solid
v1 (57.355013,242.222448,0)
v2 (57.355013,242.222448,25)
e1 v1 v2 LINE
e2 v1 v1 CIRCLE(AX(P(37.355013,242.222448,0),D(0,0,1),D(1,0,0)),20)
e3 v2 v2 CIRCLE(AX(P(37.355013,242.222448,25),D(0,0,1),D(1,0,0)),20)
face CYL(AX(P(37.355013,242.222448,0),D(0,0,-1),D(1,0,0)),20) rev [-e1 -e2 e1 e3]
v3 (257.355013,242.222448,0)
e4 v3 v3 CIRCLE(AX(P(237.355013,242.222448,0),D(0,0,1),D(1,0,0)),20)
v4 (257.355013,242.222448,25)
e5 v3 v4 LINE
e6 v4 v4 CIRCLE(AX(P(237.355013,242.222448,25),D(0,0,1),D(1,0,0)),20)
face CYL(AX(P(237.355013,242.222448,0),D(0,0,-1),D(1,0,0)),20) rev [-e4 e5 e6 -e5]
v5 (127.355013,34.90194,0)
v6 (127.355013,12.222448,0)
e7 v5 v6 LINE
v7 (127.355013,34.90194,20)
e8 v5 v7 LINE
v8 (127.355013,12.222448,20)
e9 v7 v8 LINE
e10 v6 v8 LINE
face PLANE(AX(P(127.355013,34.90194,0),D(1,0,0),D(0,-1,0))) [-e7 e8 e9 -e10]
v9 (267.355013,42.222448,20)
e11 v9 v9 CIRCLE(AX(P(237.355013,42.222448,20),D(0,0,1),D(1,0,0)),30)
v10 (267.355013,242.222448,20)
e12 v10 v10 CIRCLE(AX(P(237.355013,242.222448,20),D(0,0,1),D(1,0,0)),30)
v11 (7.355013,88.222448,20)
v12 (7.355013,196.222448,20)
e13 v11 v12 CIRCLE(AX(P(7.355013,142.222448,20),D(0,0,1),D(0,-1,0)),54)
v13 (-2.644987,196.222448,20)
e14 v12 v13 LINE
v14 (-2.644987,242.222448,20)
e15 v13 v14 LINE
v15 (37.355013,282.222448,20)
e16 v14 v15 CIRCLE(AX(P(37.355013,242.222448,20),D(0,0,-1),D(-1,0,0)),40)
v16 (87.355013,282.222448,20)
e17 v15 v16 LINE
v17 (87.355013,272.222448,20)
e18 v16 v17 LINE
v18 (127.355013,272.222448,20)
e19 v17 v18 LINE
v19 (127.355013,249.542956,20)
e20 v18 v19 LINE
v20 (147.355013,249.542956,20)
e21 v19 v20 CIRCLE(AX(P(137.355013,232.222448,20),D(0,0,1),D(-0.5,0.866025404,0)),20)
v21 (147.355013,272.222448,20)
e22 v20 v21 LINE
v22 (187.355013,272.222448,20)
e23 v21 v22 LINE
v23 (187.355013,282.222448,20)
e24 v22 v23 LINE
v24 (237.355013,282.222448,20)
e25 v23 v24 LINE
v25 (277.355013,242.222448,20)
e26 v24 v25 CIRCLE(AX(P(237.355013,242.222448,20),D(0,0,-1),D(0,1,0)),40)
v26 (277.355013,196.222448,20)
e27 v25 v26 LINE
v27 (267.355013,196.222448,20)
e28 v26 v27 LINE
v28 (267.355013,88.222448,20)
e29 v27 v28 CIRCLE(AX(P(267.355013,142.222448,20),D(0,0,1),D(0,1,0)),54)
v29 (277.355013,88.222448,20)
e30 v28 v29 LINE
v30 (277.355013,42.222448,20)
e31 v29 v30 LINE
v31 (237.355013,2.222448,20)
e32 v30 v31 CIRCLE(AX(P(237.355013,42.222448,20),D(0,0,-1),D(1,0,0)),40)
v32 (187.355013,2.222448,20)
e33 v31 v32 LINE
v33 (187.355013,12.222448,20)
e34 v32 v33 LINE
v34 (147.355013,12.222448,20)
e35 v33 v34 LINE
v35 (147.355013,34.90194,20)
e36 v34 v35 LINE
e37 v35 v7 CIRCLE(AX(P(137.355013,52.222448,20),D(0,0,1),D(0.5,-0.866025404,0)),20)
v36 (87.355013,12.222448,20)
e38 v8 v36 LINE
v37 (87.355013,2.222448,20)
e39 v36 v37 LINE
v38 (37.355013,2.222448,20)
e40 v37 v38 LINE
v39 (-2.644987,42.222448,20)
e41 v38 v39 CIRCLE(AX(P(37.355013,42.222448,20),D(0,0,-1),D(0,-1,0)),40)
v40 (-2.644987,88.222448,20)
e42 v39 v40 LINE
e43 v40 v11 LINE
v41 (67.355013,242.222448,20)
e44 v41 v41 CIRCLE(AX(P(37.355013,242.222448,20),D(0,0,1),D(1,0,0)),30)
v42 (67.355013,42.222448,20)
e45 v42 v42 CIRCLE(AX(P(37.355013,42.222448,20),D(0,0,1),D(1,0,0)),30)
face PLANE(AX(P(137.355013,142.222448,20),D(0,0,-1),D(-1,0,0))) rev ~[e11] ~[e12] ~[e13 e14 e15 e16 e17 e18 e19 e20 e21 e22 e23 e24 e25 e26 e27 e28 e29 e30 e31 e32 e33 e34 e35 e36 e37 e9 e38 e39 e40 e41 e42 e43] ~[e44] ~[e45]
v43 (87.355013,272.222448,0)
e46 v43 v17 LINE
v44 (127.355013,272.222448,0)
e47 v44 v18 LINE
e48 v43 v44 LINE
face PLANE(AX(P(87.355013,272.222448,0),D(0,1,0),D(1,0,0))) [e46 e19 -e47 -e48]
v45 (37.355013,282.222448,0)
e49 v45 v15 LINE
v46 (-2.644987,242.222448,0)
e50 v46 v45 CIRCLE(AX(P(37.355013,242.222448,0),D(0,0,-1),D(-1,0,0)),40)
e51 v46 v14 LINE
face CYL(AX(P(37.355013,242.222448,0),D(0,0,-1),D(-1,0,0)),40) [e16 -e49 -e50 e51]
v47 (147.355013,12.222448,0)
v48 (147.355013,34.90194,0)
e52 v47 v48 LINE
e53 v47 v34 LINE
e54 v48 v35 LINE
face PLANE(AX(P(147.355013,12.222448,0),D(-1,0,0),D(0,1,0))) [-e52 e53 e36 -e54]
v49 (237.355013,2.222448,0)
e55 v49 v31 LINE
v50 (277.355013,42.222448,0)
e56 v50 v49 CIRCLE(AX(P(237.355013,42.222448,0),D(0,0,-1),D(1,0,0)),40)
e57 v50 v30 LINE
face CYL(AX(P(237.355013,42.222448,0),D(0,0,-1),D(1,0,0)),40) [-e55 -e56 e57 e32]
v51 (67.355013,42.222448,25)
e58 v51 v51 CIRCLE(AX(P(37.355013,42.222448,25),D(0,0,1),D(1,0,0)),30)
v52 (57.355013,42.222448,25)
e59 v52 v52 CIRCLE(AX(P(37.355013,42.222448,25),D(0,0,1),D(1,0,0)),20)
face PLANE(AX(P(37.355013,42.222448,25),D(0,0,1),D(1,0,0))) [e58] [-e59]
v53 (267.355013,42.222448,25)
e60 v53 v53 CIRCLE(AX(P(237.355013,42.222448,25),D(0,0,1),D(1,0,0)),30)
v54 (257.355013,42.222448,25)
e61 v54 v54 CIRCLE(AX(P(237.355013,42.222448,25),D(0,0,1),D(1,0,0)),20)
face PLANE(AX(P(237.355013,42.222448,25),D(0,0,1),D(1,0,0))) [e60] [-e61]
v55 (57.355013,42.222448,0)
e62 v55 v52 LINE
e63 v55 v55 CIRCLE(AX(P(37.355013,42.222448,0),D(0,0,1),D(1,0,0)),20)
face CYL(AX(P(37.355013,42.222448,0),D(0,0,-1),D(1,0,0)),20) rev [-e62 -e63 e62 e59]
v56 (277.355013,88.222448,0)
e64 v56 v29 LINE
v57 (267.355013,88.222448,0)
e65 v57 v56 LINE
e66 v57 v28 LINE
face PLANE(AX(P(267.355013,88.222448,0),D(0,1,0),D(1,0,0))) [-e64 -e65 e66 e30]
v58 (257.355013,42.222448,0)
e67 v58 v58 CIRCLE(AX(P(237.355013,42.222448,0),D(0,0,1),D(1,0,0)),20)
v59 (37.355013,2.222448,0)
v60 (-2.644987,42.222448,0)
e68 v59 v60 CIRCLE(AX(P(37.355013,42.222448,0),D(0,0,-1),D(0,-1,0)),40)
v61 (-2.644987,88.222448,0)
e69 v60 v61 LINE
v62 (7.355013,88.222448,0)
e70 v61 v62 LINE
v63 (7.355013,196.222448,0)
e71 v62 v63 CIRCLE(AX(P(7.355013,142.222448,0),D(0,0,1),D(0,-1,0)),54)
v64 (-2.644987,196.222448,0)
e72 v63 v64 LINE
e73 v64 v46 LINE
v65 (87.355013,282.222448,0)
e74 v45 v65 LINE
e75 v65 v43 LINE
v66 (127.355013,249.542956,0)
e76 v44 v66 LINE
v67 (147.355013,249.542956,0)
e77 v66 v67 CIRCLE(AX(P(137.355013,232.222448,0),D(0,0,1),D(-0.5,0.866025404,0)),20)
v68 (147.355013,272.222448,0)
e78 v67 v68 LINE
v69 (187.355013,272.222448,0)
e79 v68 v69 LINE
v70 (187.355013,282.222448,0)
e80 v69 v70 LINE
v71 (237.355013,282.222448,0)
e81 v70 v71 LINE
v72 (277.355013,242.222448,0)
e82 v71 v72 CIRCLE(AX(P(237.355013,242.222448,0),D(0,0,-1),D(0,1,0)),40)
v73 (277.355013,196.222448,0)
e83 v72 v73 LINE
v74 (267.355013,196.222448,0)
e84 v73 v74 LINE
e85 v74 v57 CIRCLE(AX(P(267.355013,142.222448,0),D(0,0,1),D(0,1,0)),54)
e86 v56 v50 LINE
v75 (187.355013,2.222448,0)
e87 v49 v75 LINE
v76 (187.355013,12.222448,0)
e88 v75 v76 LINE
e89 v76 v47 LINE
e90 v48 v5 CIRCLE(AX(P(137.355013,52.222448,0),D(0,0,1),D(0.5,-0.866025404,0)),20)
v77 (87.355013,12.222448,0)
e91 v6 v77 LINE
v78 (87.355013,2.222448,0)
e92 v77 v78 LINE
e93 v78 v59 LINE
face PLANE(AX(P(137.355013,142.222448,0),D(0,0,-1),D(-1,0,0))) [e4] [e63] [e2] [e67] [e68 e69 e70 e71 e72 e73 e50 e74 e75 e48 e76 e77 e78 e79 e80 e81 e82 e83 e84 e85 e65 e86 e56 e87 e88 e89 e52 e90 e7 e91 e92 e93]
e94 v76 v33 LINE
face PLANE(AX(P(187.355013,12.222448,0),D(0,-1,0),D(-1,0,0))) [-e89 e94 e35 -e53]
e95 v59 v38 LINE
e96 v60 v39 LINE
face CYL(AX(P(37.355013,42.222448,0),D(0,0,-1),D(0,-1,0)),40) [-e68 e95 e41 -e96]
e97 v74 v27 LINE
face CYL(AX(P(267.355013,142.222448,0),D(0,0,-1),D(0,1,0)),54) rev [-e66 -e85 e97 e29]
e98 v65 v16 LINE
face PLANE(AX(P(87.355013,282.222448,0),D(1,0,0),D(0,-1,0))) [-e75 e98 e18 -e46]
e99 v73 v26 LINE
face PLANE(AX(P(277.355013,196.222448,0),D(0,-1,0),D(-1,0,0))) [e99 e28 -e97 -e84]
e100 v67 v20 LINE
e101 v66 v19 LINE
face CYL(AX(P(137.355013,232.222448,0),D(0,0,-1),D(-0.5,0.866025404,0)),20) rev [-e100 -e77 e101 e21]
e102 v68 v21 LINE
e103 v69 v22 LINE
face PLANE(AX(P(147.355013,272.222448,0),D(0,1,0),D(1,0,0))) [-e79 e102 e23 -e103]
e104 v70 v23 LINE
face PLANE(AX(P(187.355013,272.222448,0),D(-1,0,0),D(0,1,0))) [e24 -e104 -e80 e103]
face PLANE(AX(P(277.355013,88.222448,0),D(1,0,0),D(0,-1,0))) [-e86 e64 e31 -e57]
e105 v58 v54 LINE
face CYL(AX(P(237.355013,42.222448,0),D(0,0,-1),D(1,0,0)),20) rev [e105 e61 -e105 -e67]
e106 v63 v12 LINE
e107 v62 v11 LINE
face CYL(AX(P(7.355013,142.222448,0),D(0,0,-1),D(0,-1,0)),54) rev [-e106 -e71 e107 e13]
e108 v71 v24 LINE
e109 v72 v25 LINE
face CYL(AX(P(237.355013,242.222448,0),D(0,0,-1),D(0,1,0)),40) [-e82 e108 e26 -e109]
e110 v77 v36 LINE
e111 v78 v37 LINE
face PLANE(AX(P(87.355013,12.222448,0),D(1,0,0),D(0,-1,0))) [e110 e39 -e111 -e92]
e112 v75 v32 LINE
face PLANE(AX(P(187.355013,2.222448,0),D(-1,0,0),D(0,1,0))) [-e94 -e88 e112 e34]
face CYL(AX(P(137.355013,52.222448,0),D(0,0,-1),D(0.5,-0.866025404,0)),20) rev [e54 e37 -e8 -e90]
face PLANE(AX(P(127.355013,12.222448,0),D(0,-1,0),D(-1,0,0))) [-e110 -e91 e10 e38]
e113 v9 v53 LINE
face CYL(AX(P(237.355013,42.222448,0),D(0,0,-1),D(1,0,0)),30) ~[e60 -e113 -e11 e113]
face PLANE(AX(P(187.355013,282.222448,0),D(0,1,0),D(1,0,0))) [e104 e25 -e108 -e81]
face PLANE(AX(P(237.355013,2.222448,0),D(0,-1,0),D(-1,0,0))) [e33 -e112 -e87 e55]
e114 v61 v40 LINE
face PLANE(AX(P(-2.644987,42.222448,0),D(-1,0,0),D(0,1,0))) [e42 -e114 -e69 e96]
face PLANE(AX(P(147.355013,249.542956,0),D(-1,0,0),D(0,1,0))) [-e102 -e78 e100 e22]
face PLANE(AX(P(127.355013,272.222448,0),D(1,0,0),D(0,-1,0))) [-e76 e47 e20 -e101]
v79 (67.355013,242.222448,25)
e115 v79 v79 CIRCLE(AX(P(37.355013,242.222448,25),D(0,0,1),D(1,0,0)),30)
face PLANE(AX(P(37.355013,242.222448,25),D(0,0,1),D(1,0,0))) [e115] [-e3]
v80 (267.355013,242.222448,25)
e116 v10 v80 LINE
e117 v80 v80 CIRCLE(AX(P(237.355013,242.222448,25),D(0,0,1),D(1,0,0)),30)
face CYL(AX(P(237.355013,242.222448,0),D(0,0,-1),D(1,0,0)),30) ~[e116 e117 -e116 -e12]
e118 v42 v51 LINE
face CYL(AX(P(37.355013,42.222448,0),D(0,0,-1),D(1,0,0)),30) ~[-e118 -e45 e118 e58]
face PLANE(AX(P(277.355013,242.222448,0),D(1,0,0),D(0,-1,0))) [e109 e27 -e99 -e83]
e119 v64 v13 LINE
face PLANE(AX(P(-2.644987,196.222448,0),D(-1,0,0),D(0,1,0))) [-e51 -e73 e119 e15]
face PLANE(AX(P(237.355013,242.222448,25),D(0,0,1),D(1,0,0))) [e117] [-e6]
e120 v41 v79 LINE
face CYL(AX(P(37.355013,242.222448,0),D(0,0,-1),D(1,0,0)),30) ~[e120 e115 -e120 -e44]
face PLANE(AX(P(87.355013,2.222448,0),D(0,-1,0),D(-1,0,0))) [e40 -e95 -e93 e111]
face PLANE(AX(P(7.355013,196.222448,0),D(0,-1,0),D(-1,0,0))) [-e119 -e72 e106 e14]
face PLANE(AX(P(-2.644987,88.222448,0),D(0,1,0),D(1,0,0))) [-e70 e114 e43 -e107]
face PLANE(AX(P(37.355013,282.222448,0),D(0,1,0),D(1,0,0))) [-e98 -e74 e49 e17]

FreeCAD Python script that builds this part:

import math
import FreeCAD as App
import Part
import Sketcher
Q = App.Units.Quantity

doc = App.newDocument("Part")
body = doc.addObject("PartDesign::Body", "Body")

# Sketch on XY plane
sketch1 = body.newObject("Sketcher::SketchObject", "Sketch")
sketch1.AttachmentSupport = (doc.getObject("XY_Plane"), [""])
sketch1.MapMode = "FlatFace"
sketch1.addGeometry([
    Part.LineSegment(App.Vector(147, 272, 0), App.Vector(147, 250, 0)),  # 0
    Part.ArcOfCircle(Part.Circle(App.Vector(137, 232, 0), App.Vector(0, 0, 1), 20), math.radians(120), math.radians(420)),  # 1
    Part.LineSegment(App.Vector(127, 250, 0), App.Vector(127, 272, 0)),  # 2
    Part.LineSegment(App.Vector(127, 272, 0), App.Vector(87, 272, 0)),  # 3
    Part.LineSegment(App.Vector(87, 272, 0), App.Vector(87, 282, 0)),  # 4
    Part.LineSegment(App.Vector(87, 282, 0), App.Vector(37, 282, 0)),  # 5
    Part.ArcOfCircle(Part.Circle(App.Vector(37, 242, 0), App.Vector(0, 0, 1), 40), math.radians(90), math.radians(180)),  # 6
    Part.LineSegment(App.Vector(-3, 242, 0), App.Vector(-3, 196, 0)),  # 7
    Part.LineSegment(App.Vector(-3, 196, 0), App.Vector(7, 196, 0)),  # 8
    Part.ArcOfCircle(Part.Circle(App.Vector(7, 142, 0), App.Vector(0, 0, 1), 54), math.radians(-90), math.radians(90)),  # 9
    Part.LineSegment(App.Vector(7, 88, 0), App.Vector(-3, 88, 0)),  # 10
    Part.LineSegment(App.Vector(-3, 88, 0), App.Vector(-3, 42, 0)),  # 11
    Part.ArcOfCircle(Part.Circle(App.Vector(37, 42, 0), App.Vector(0, 0, 1), 40), math.radians(-180), math.radians(-90)),  # 12
    Part.LineSegment(App.Vector(37, 2, 0), App.Vector(87, 2, 0)),  # 13
    Part.LineSegment(App.Vector(87, 2, 0), App.Vector(87, 12, 0)),  # 14
    Part.LineSegment(App.Vector(87, 12, 0), App.Vector(127, 12, 0)),  # 15
    Part.LineSegment(App.Vector(127, 12, 0), App.Vector(127, 35, 0)),  # 16
    Part.ArcOfCircle(Part.Circle(App.Vector(137, 52, 0), App.Vector(0, 0, 1), 20), math.radians(-60), math.radians(240)),  # 17
    Part.LineSegment(App.Vector(147, 35, 0), App.Vector(147, 12, 0)),  # 18
    Part.LineSegment(App.Vector(147, 12, 0), App.Vector(187, 12, 0)),  # 19
    Part.LineSegment(App.Vector(187, 12, 0), App.Vector(187, 2, 0)),  # 20
    Part.LineSegment(App.Vector(187, 2, 0), App.Vector(237, 2, 0)),  # 21
    Part.ArcOfCircle(Part.Circle(App.Vector(237, 42, 0), App.Vector(0, 0, 1), 40), math.radians(-90), math.radians(0)),  # 22
    Part.LineSegment(App.Vector(277, 42, 0), App.Vector(277, 88, 0)),  # 23
    Part.LineSegment(App.Vector(277, 88, 0), App.Vector(267, 88, 0)),  # 24
    Part.ArcOfCircle(Part.Circle(App.Vector(267, 142, 0), App.Vector(0, 0, 1), 54), math.radians(90), math.radians(270)),  # 25
    Part.LineSegment(App.Vector(267, 196, 0), App.Vector(277, 196, 0)),  # 26
    Part.LineSegment(App.Vector(277, 196, 0), App.Vector(277, 242, 0)),  # 27
    Part.ArcOfCircle(Part.Circle(App.Vector(237, 242, 0), App.Vector(0, 0, 1), 40), math.radians(0), math.radians(90)),  # 28
    Part.LineSegment(App.Vector(237, 282, 0), App.Vector(187, 282, 0)),  # 29
    Part.LineSegment(App.Vector(187, 282, 0), App.Vector(187, 272, 0)),  # 30
    Part.LineSegment(App.Vector(187, 272, 0), App.Vector(147, 272, 0)),  # 31
    Part.Circle(App.Vector(237, 42, 0), App.Vector(0, 0, 1), 30),  # 32
    Part.Circle(App.Vector(37, 42, 0), App.Vector(0, 0, 1), 30),  # 33
    Part.Circle(App.Vector(237, 242, 0), App.Vector(0, 0, 1), 30),  # 34
    Part.Circle(App.Vector(37, 242, 0), App.Vector(0, 0, 1), 30),  # 35
], False)
sketch1.addConstraint([
    Sketcher.Constraint("Coincident", 0, 2, 1, 2),
    Sketcher.Constraint("Coincident", 1, 1, 2, 1),
    Sketcher.Constraint("Coincident", 2, 2, 3, 1),
    Sketcher.Constraint("Coincident", 3, 2, 4, 1),
    Sketcher.Constraint("Coincident", 4, 2, 5, 1),
    Sketcher.Constraint("Tangent", 5, 2, 6, 1),
    Sketcher.Constraint("Tangent", 6, 2, 7, 1),
    Sketcher.Constraint("Coincident", 7, 2, 8, 1),
    Sketcher.Constraint("Tangent", 8, 2, 9, 2),
    Sketcher.Constraint("Tangent", 9, 1, 10, 1),
    Sketcher.Constraint("Coincident", 10, 2, 11, 1),
    Sketcher.Constraint("Tangent", 11, 2, 12, 1),
    Sketcher.Constraint("Tangent", 12, 2, 13, 1),
    Sketcher.Constraint("Coincident", 13, 2, 14, 1),
    Sketcher.Constraint("Coincident", 14, 2, 15, 1),
    Sketcher.Constraint("Coincident", 15, 2, 16, 1),
    Sketcher.Constraint("Coincident", 16, 2, 17, 2),
    Sketcher.Constraint("Coincident", 17, 1, 18, 1),
    Sketcher.Constraint("Coincident", 18, 2, 19, 1),
    Sketcher.Constraint("Coincident", 19, 2, 20, 1),
    Sketcher.Constraint("Coincident", 20, 2, 21, 1),
    Sketcher.Constraint("Tangent", 21, 2, 22, 1),
    Sketcher.Constraint("Tangent", 22, 2, 23, 1),
    Sketcher.Constraint("Coincident", 23, 2, 24, 1),
    Sketcher.Constraint("Tangent", 24, 2, 25, 2),
    Sketcher.Constraint("Tangent", 25, 1, 26, 1),
    Sketcher.Constraint("Coincident", 26, 2, 27, 1),
    Sketcher.Constraint("Tangent", 27, 2, 28, 1),
    Sketcher.Constraint("Tangent", 28, 2, 29, 1),
    Sketcher.Constraint("Coincident", 29, 2, 30, 1),
    Sketcher.Constraint("Coincident", 30, 2, 31, 1),
    Sketcher.Constraint("Coincident", 31, 2, 0, 1),
    Sketcher.Constraint("Vertical", 0),
    Sketcher.Constraint("Vertical", 2),
    Sketcher.Constraint("Horizontal", 3),
    Sketcher.Constraint("Vertical", 4),
    Sketcher.Constraint("Horizontal", 5),
    Sketcher.Constraint("Vertical", 7),
    Sketcher.Constraint("Horizontal", 8),
    Sketcher.Constraint("Horizontal", 10),
    Sketcher.Constraint("Vertical", 11),
    Sketcher.Constraint("Horizontal", 13),
    Sketcher.Constraint("Vertical", 14),
    Sketcher.Constraint("Horizontal", 15),
    Sketcher.Constraint("Vertical", 16),
    Sketcher.Constraint("Vertical", 18),
    Sketcher.Constraint("Horizontal", 19),
    Sketcher.Constraint("Vertical", 20),
    Sketcher.Constraint("Horizontal", 21),
    Sketcher.Constraint("Vertical", 23),
    Sketcher.Constraint("Horizontal", 24),
    Sketcher.Constraint("Horizontal", 26),
    Sketcher.Constraint("Vertical", 27),
    Sketcher.Constraint("Horizontal", 29),
    Sketcher.Constraint("Vertical", 30),
    Sketcher.Constraint("Horizontal", 31),
    Sketcher.Constraint("Coincident", 32, 3, 22, 3),
    Sketcher.Constraint("Coincident", 33, 3, 12, 3),
    Sketcher.Constraint("Coincident", 34, 3, 28, 3),
    Sketcher.Constraint("Coincident", 35, 3, 6, 3),
    Sketcher.Constraint("Equal", 6, 12),
    Sketcher.Constraint("Equal", 1, 17),
    Sketcher.Constraint("Equal", 12, 22),
    Sketcher.Constraint("Equal", 9, 25),
    Sketcher.Constraint("Equal", 22, 28),
    Sketcher.Constraint("Equal", 32, 33),
    Sketcher.Constraint("Equal", 33, 34),
    Sketcher.Constraint("Equal", 34, 35),
    Sketcher.Constraint("Horizontal", 12, 3, 22, 3),
    Sketcher.Constraint("Horizontal", 9, 3, 25, 3),
    Sketcher.Constraint("Horizontal", 6, 3, 28, 3),
    Sketcher.Constraint("Horizontal", 0, 2, 1, 1),
    Sketcher.Constraint("Horizontal", 16, 2, 17, 1),
    Sketcher.Constraint("Horizontal", 15, 2, 18, 2),
    Sketcher.Constraint("Horizontal", 3, 2, 30, 2),
    Sketcher.Constraint("Vertical", 6, 3, 12, 3),
    Sketcher.Constraint("Vertical", 1, 3, 17, 3),
    Sketcher.Constraint("Vertical", 22, 3, 28, 3),
    Sketcher.Constraint("Vertical", 4, 2, 13, 2),
    Sketcher.Constraint("Vertical", 2, 2, 15, 2),
    Sketcher.Constraint("Vertical", 20, 2, 29, 2),
    Sketcher.Constraint("Equal", 15, 19),
    Sketcher.Constraint("Equal", 13, 21),
    Sketcher.Constraint("Equal", 10, 24),
    Sketcher.Constraint("Equal", 26, 4),
    Sketcher.Constraint("Equal", 7, 11),
    Sketcher.Constraint("Equal", 4, 14),
    Sketcher.Constraint("Equal", 2, 16),
    Sketcher.Constraint("Diameter", 32, Q("60 mm")),
    Sketcher.Constraint("Radius", 1, Q("20 mm")),
    Sketcher.Constraint("Radius", 6, Q("40 mm")),
    Sketcher.Constraint("Radius", 9, Q("54 mm")),
    Sketcher.Constraint("DistanceX", 3, 2, 3, 1, Q("40 mm")),
    Sketcher.Constraint("DistanceX", 5, 2, 5, 1, Q("50 mm")),
    Sketcher.Constraint("DistanceX", 8, 1, 8, 2, Q("10 mm")),
    Sketcher.Constraint("DistanceY", 7, 2, 7, 1, Q("46 mm")),
    Sketcher.Constraint("DistanceX", 6, 3, 1, 3, Q("100 mm")),
    Sketcher.Constraint("DistanceY", 1, 3, 6, 3, Q("10 mm")),
    Sketcher.Constraint("DistanceY", -1, 1, 16, 2, Q("34.90194 mm")),
    Sketcher.Constraint("DistanceX", -1, 1, 1, 3, Q("137.355013 mm")),
])
pad1 = body.newObject("PartDesign::Pad", "Pad")
pad1.Profile = sketch1
pad1.Length = 20

# Sketch on XY plane
sketch2 = body.newObject("Sketcher::SketchObject", "Sketch001")
sketch2.AttachmentSupport = (doc.getObject("XY_Plane"), [""])
sketch2.MapMode = "FlatFace"
sketch2.addGeometry([
    Part.Circle(App.Vector(37, 242, 0), App.Vector(0, 0, 1), 30),  # 0
    Part.Circle(App.Vector(37, 242, 0), App.Vector(0, 0, 1), 20),  # 1
    Part.Circle(App.Vector(237, 242, 0), App.Vector(0, 0, 1), 30),  # 2
    Part.Circle(App.Vector(237, 242, 0), App.Vector(0, 0, 1), 20),  # 3
    Part.Circle(App.Vector(37, 42, 0), App.Vector(0, 0, 1), 30),  # 4
    Part.Circle(App.Vector(37, 42, 0), App.Vector(0, 0, 1), 20),  # 5
    Part.Circle(App.Vector(237, 42, 0), App.Vector(0, 0, 1), 30),  # 6
    Part.Circle(App.Vector(237, 42, 0), App.Vector(0, 0, 1), 20),  # 7
], False)
sketch2.addConstraint([
    Sketcher.Constraint("Coincident", 1, 3, 0, 3),
    Sketcher.Constraint("Coincident", 3, 3, 2, 3),
    Sketcher.Constraint("Coincident", 5, 3, 4, 3),
    Sketcher.Constraint("Coincident", 7, 3, 6, 3),
    Sketcher.Constraint("Equal", 0, 2),
    Sketcher.Constraint("Equal", 1, 3),
    Sketcher.Constraint("Equal", 2, 4),
    Sketcher.Constraint("Equal", 3, 5),
    Sketcher.Constraint("Equal", 4, 6),
    Sketcher.Constraint("Equal", 5, 7),
    Sketcher.Constraint("Horizontal", 1, 3, 2, 3),
    Sketcher.Constraint("Horizontal", 5, 3, 6, 3),
    Sketcher.Constraint("Vertical", 1, 3, 4, 3),
    Sketcher.Constraint("Vertical", 3, 3, 6, 3),
    Sketcher.Constraint("Diameter", 0, Q("60 mm")),
    Sketcher.Constraint("Diameter", 1, Q("40 mm")),
    Sketcher.Constraint("DistanceX", 0, 3, 2, 3, Q("200 mm")),
    Sketcher.Constraint("DistanceY", 4, 3, 0, 3, Q("200 mm")),
    Sketcher.Constraint("DistanceX", -1, 1, 0, 3, Q("37.355013 mm")),
    Sketcher.Constraint("DistanceY", -1, 1, 0, 3, Q("242.222448 mm")),
])
pad2 = body.newObject("PartDesign::Pad", "Pad001")
pad2.Profile = sketch2
pad2.Length = 25

doc.recompute()
